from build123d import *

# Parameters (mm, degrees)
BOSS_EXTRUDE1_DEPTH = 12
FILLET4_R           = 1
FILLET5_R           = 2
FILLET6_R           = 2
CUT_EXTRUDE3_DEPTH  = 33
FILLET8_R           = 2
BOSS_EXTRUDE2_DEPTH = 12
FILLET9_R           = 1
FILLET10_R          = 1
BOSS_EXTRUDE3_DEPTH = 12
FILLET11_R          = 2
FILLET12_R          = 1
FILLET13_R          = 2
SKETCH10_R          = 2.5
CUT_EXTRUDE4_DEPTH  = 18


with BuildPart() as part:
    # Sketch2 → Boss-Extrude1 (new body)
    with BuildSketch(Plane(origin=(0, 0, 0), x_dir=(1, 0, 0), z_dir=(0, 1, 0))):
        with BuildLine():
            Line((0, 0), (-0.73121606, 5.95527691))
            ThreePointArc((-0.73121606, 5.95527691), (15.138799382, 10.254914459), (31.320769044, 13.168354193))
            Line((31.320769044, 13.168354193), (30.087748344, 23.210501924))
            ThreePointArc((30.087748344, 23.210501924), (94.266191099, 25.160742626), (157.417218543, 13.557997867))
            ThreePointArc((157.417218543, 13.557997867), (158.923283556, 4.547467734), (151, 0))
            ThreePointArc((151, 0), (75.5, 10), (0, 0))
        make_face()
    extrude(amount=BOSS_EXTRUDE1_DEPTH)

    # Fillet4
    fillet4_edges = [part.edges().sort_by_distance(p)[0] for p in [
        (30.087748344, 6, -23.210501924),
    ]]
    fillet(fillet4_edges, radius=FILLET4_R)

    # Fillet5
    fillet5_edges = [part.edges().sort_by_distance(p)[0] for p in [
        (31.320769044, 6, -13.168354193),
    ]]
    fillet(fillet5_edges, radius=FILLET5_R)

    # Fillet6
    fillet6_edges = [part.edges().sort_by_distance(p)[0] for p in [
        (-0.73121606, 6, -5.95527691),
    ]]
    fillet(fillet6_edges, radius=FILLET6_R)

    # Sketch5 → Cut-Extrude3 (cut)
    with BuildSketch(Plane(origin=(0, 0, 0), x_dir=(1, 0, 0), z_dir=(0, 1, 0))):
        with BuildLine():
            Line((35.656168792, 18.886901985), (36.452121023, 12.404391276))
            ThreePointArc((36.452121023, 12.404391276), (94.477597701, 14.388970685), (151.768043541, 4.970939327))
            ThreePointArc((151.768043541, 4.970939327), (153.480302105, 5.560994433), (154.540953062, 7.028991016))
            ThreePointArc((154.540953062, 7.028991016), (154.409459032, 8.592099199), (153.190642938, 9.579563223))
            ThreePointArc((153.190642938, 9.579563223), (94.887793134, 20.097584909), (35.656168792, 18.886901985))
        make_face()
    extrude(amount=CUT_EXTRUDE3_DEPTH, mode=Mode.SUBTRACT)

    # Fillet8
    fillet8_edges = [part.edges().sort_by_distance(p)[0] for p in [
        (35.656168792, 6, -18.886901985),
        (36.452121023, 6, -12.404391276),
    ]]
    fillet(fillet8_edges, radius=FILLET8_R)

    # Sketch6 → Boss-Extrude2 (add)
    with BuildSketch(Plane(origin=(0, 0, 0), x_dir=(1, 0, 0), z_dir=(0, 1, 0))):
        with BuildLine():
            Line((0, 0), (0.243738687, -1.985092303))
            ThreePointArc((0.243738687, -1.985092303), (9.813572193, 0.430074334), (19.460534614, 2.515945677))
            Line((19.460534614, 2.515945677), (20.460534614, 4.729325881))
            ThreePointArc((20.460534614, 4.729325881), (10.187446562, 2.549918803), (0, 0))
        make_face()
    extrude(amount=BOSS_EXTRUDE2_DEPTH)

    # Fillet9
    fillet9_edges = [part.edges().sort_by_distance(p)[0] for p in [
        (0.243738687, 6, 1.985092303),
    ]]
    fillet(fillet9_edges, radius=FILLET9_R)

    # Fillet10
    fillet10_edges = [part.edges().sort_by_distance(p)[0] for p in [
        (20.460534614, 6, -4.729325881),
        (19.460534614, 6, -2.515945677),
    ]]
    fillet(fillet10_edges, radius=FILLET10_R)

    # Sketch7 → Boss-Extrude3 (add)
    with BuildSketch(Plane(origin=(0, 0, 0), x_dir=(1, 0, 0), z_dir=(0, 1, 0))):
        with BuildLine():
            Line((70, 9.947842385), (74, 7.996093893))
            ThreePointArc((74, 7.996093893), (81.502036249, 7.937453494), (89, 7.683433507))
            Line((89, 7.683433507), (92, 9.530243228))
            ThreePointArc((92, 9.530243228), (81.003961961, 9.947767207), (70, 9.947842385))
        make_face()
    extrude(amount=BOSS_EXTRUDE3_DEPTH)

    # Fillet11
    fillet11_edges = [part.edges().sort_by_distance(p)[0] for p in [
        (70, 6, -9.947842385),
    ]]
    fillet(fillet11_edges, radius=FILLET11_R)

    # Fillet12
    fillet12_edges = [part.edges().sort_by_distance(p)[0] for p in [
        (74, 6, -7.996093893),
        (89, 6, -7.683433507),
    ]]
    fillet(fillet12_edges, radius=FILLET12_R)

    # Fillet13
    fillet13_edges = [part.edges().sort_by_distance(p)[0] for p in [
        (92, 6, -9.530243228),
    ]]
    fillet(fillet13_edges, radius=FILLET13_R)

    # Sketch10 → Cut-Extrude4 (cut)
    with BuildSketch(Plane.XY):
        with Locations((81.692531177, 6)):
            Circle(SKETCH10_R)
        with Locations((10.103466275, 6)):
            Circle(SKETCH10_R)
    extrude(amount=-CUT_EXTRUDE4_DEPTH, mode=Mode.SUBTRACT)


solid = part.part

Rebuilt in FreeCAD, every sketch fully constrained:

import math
import FreeCAD as App
import Part
import Sketcher
from FreeCAD import Vector
Q = App.Units.Quantity


def edges_at(feature, points):
    """Names of the edges that pass closest to the given points."""
    edges = feature.Shape.Edges
    near = lambda p: min(range(len(edges)), key=lambda i: edges[i].distToShape(Part.Vertex(*p))[0])
    return sorted({f"Edge{near(p) + 1}" for p in points})

doc = App.newDocument("Part")
params = doc.addObject("Spreadsheet::Sheet", "Params")
for row, (alias, value) in enumerate([
    ("sketch1_radius", "8 mm"),
    ("sketch1_length", "6 mm"),
    ("pad1_length", "12 mm"),
    ("fillet_radius", "1 mm"),
    ("fillet2_radius", "2 mm"),
    ("fillet3_radius", "2 mm"),
    ("sketch2_radius", "3 mm"),
    ("sketch2_radius2", "2 mm"),
    ("pocket1_length", "33 mm"),
    ("fillet4_radius", "2 mm"),
    ("sketch3_length", "2 mm"),
    ("pad2_length", "12 mm"),
    ("fillet5_radius", "1 mm"),
    ("fillet6_radius", "1 mm"),
    ("pad3_length", "12 mm"),
    ("fillet7_radius", "2 mm"),
    ("fillet8_radius", "1 mm"),
    ("fillet9_radius", "2 mm"),
    ("sketch5_diameter", "5 mm"),
    ("pocket2_length", "18 mm"),
], start=1):
    params.set(f"A{row}", alias)
    params.set(f"B{row}", "=" + value)
    params.setAlias(f"B{row}", alias)

body = doc.addObject("PartDesign::Body", "Body")

# Sketch on XZ plane
sketch1 = doc.addObject("Sketcher::SketchObject", "Sketch")
body.addObject(sketch1)
sketch1.AttachmentSupport = (doc.XZ_Plane, [""])
sketch1.MapMode = "FlatFace"
sketch1.addGeometry([
    Part.LineSegment(Vector(-1, -6, 0), Vector(0, 0, 0)),  # 0
    Part.ArcOfCircle(Part.Circle(Vector(76, 280, 0), Vector(0, 0, 1), 290), math.radians(-105), math.radians(-75)),  # 1
    Part.ArcOfCircle(Part.Circle(Vector(152, -8, 0), Vector(0, 0, 1), 8), math.radians(-44), math.radians(95)),  # 2
    Part.ArcOfCircle(Part.Circle(Vector(71, 277, 0), Vector(0, 0, 1), 303), math.radians(-98), math.radians(-74)),  # 3
    Part.LineSegment(Vector(30, -23, 0), Vector(31, -13, 0)),  # 4
    Part.ArcOfCircle(Part.Circle(Vector(57, 175, 0), Vector(0, 0, 1), 190), math.radians(-107.64), math.radians(-97.73)),  # 5
], False)
sketch1.addConstraint([
    Sketcher.Constraint("Coincident", 0, 2, 1, 1),
    Sketcher.Constraint("Coincident", 1, 2, 2, 2),
    Sketcher.Constraint("Coincident", 2, 1, 3, 2),
    Sketcher.Constraint("Coincident", 3, 1, 4, 1),
    Sketcher.Constraint("Coincident", 4, 2, 5, 2),
    Sketcher.Constraint("Coincident", 5, 1, 0, 1),
    Sketcher.Constraint("Coincident", 0, 2, -1, 1),
    Sketcher.Constraint("PointOnObject", 1, 2, -1),
    Sketcher.Constraint("Parallel", 0, 4),
    Sketcher.Constraint("Radius", 2, 8.0),
    Sketcher.Constraint("Angle", 0, Q("83 deg")),
    Sketcher.Constraint("Distance", 0, 6.0),
    Sketcher.Constraint("DistanceX", -1, 1, 1, 2, 151.0),
    Sketcher.Constraint("Radius", 1, 290.0125),
    Sketcher.Constraint("Radius", 3, 303.319205),
    Sketcher.Constraint("Radius", 5, 190.267272),
    Sketcher.Constraint("DistanceY", 3, 1, -1, 1, 23.210502),
    Sketcher.Constraint("DistanceX", -1, 1, 2, 3, 151.692351),
    Sketcher.Constraint("DistanceY", -1, 1, 3, 3, 277.290652),
    Sketcher.Constraint("DistanceY", -1, 1, 5, 3, 175.36998),
    Sketcher.Constraint("DistanceX", -1, 1, 2, 1, 157.417219),
])
sketch1.setExpression("Constraints[9]", "Params.sketch1_radius")
sketch1.setExpression("Constraints[11]", "Params.sketch1_length")
pad1 = doc.addObject("PartDesign::Pad", "Pad")
body.addObject(pad1)
pad1.Profile = sketch1
pad1.setExpression("Length", "Params.pad1_length")
pad1.Reversed = True
doc.recompute()

fillet = doc.addObject("PartDesign::Fillet", "Fillet")
body.addObject(fillet)
fillet.Base = (pad1, edges_at(pad1, [(30.088, 6, -23.211)]))
fillet.setExpression("Radius", "Params.fillet_radius")
doc.recompute()

fillet2 = doc.addObject("PartDesign::Fillet", "Fillet001")
body.addObject(fillet2)
fillet2.Base = (fillet, edges_at(fillet, [(31.321, 6, -13.168)]))
fillet2.setExpression("Radius", "Params.fillet2_radius")
doc.recompute()

fillet3 = doc.addObject("PartDesign::Fillet", "Fillet002")
body.addObject(fillet3)
fillet3.Base = (fillet2, edges_at(fillet2, [(-0.731, 6, -5.955)]))
fillet3.setExpression("Radius", "Params.fillet3_radius")

# Sketch on XZ plane
sketch2 = doc.addObject("Sketcher::SketchObject", "Sketch001")
body.addObject(sketch2)
sketch2.AttachmentSupport = (doc.XZ_Plane, [""])
sketch2.MapMode = "FlatFace"
sketch2.addGeometry([
    Part.LineSegment(Vector(35.7, -18.9, 0), Vector(36.5, -12.4, 0)),  # 0
    Part.ArcOfCircle(Part.Circle(Vector(75.5, 280, 0), Vector(0, 0, 1), 295), math.radians(-98), math.radians(-75)),  # 1
    Part.ArcOfCircle(Part.Circle(Vector(151.7, -8, 0), Vector(0, 0, 1), 3), math.radians(18), math.radians(89)),  # 2
    Part.ArcOfCircle(Part.Circle(Vector(152.6, -7.7, 0), Vector(0, 0, 1), 2), math.radians(-74), math.radians(18)),  # 3
    Part.ArcOfCircle(Part.Circle(Vector(71.3, 277.3, 0), Vector(0, 0, 1), 298.3), math.radians(-97), math.radians(-74)),  # 4
], False)
sketch2.addConstraint([
    Sketcher.Constraint("Coincident", 0, 2, 1, 1),
    Sketcher.Constraint("Coincident", 1, 2, 2, 2),
    Sketcher.Constraint("Tangent", 2, 1, 3, 2),
    Sketcher.Constraint("Tangent", 3, 1, 4, 2),
    Sketcher.Constraint("Coincident", 4, 1, 0, 1),
    Sketcher.Constraint("Radius", 2, 3.0),
    Sketcher.Constraint("Radius", 3, 2.0),
    Sketcher.Constraint("Angle", 0, Q("83 deg")),
    Sketcher.Constraint("DistanceX", -1, 1, 1, 3, 75.5),
    Sketcher.Constraint("Radius", 1, 295.0125),
    Sketcher.Constraint("Radius", 4, 298.319205),
    Sketcher.Constraint("DistanceY", -1, 1, 1, 3, 280.0125),
    Sketcher.Constraint("DistanceY", 4, 1, -1, 1, 18.886902),
    Sketcher.Constraint("DistanceX", 2, 3, 2, 1, 2.848602),
    Sketcher.Constraint("DistanceY", 0, 2, 2, 1, 5.3754),
    Sketcher.Constraint("DistanceX", 1, 2, 3, 1, 1.422599),
    Sketcher.Constraint("DistanceX", -1, 1, 2, 3, 151.692351),
])
sketch2.setExpression("Constraints[5]", "Params.sketch2_radius")
sketch2.setExpression("Constraints[6]", "Params.sketch2_radius2")
pocket1 = doc.addObject("PartDesign::Pocket", "Pocket")
body.addObject(pocket1)
pocket1.Profile = sketch2
pocket1.setExpression("Length", "Params.pocket1_length")
doc.recompute()

fillet4 = doc.addObject("PartDesign::Fillet", "Fillet003")
body.addObject(fillet4)
fillet4.Base = (pocket1, edges_at(pocket1, [(35.656, 6, -18.887), (36.452, 6, -12.404)]))
fillet4.setExpression("Radius", "Params.fillet4_radius")

# Sketch on XZ plane
sketch3 = doc.addObject("Sketcher::SketchObject", "Sketch002")
body.addObject(sketch3)
sketch3.AttachmentSupport = (doc.XZ_Plane, [""])
sketch3.MapMode = "FlatFace"
sketch3.addGeometry([
    Part.LineSegment(Vector(0, 0, 0), Vector(0.2, 2, 0)),
    Part.ArcOfCircle(Part.Circle(Vector(75.5, 280, 0), Vector(0, 0, 1), 288), math.radians(-105.15), math.radians(-101.22)),
    Part.LineSegment(Vector(19.5, -2.5, 0), Vector(20.5, -4.7, 0)),
    Part.ArcOfCircle(Part.Circle(Vector(75.5, 280, 0), Vector(0, 0, 1), 290), math.radians(-105.09), math.radians(-100.94)),
], False)
sketch3.addConstraint([
    Sketcher.Constraint("Coincident", 0, 2, 1, 1),
    Sketcher.Constraint("Coincident", 1, 2, 2, 1),
    Sketcher.Constraint("Coincident", 2, 2, 3, 2),
    Sketcher.Constraint("Coincident", 3, 1, 0, 1),
    Sketcher.Constraint("Coincident", 3, 1, -1, 1),
    Sketcher.Constraint("Coincident", 3, 3, 1, 3),
    Sketcher.Constraint("Angle", 0, Q("83 deg")),
    Sketcher.Constraint("Distance", 0, 2.0),
    Sketcher.Constraint("DistanceX", 1, 2, 2, 2, 1.0),
    Sketcher.Constraint("DistanceX", -1, 1, 1, 3, 75.5),
    Sketcher.Constraint("Radius", 3, 290.012499),
    Sketcher.Constraint("DistanceY", 2, 2, 0, 2, 6.714418),
])
sketch3.setExpression("Constraints[7]", "Params.sketch3_length")
pad2 = doc.addObject("PartDesign::Pad", "Pad001")
body.addObject(pad2)
pad2.Profile = sketch3
pad2.setExpression("Length", "Params.pad2_length")
pad2.Reversed = True
doc.recompute()

fillet5 = doc.addObject("PartDesign::Fillet", "Fillet004")
body.addObject(fillet5)
fillet5.Base = (pad2, edges_at(pad2, [(0.244, 6, 1.985)]))
fillet5.setExpression("Radius", "Params.fillet5_radius")
doc.recompute()

fillet6 = doc.addObject("PartDesign::Fillet", "Fillet005")
body.addObject(fillet6)
fillet6.Base = (fillet5, edges_at(fillet5, [(20.461, 6, -4.729), (19.461, 6, -2.516)]))
fillet6.setExpression("Radius", "Params.fillet6_radius")

# Sketch on XZ plane
sketch4 = doc.addObject("Sketcher::SketchObject", "Sketch003")
body.addObject(sketch4)
sketch4.AttachmentSupport = (doc.XZ_Plane, [""])
sketch4.MapMode = "FlatFace"
sketch4.addGeometry([
    Part.LineSegment(Vector(70, -9.9, 0), Vector(74, -8, 0)),
    Part.ArcOfCircle(Part.Circle(Vector(75.5, 280, 0), Vector(0, 0, 1), 288), math.radians(-90.3), math.radians(-87.31)),
    Part.LineSegment(Vector(89, -7.7, 0), Vector(92, -9.5, 0)),
    Part.ArcOfCircle(Part.Circle(Vector(75.5, 280, 0), Vector(0, 0, 1), 290), math.radians(-91.09), math.radians(-86.74)),
], False)
sketch4.addConstraint([
    Sketcher.Constraint("Coincident", 0, 2, 1, 1),
    Sketcher.Constraint("Coincident", 1, 2, 2, 1),
    Sketcher.Constraint("Coincident", 2, 2, 3, 2),
    Sketcher.Constraint("Coincident", 3, 1, 0, 1),
    Sketcher.Constraint("Coincident", 3, 3, 1, 3),
    Sketcher.Constraint("DistanceX", -1, 1, 0, 2, 74.0),
    Sketcher.Constraint("DistanceX", -1, 1, 1, 2, 89.0),
    Sketcher.Constraint("DistanceX", -1, 1, 2, 2, 92.0),
    Sketcher.Constraint("DistanceX", -1, 1, 3, 1, 70.0),
    Sketcher.Constraint("DistanceX", -1, 1, 1, 3, 75.5),
    Sketcher.Constraint("Radius", 1, 288.0125),
    Sketcher.Constraint("Radius", 3, 290.0125),
    Sketcher.Constraint("DistanceY", -1, 1, 1, 3, 280.0125),
])
pad3 = doc.addObject("PartDesign::Pad", "Pad002")
body.addObject(pad3)
pad3.Profile = sketch4
pad3.setExpression("Length", "Params.pad3_length")
pad3.Reversed = True
doc.recompute()

fillet7 = doc.addObject("PartDesign::Fillet", "Fillet006")
body.addObject(fillet7)
fillet7.Base = (pad3, edges_at(pad3, [(70, 6, -9.948)]))
fillet7.setExpression("Radius", "Params.fillet7_radius")
doc.recompute()

fillet8 = doc.addObject("PartDesign::Fillet", "Fillet007")
body.addObject(fillet8)
fillet8.Base = (fillet7, edges_at(fillet7, [(74, 6, -7.996), (89, 6, -7.683)]))
fillet8.setExpression("Radius", "Params.fillet8_radius")
doc.recompute()

fillet9 = doc.addObject("PartDesign::Fillet", "Fillet008")
body.addObject(fillet9)
fillet9.Base = (fillet8, edges_at(fillet8, [(92, 6, -9.53)]))
fillet9.setExpression("Radius", "Params.fillet9_radius")

# Sketch on XY plane
sketch5 = doc.addObject("Sketcher::SketchObject", "Sketch004")
body.addObject(sketch5)
sketch5.AttachmentSupport = (doc.XY_Plane, [""])
sketch5.MapMode = "FlatFace"
sketch5.addGeometry([
    Part.Circle(Vector(81.7, 6, 0), Vector(0, 0, 1), 2.5),
    Part.Circle(Vector(10.1, 6, 0), Vector(0, 0, 1), 2.5),
], False)
sketch5.addConstraint([
    Sketcher.Constraint("Equal", 0, 1),
    Sketcher.Constraint("Horizontal", 0, 3, 1, 3),
    Sketcher.Constraint("Diameter", 0, 5.0),
    Sketcher.Constraint("DistanceY", -1, 1, 0, 3, 6.0),
    Sketcher.Constraint("DistanceX", -1, 1, 0, 3, 81.692531),
    Sketcher.Constraint("DistanceX", -1, 1, 1, 3, 10.103466),
])
sketch5.setExpression("Constraints[2]", "Params.sketch5_diameter")
pocket2 = doc.addObject("PartDesign::Pocket", "Pocket001")
body.addObject(pocket2)
pocket2.Profile = sketch5
pocket2.setExpression("Length", "Params.pocket2_length")

doc.recompute()
